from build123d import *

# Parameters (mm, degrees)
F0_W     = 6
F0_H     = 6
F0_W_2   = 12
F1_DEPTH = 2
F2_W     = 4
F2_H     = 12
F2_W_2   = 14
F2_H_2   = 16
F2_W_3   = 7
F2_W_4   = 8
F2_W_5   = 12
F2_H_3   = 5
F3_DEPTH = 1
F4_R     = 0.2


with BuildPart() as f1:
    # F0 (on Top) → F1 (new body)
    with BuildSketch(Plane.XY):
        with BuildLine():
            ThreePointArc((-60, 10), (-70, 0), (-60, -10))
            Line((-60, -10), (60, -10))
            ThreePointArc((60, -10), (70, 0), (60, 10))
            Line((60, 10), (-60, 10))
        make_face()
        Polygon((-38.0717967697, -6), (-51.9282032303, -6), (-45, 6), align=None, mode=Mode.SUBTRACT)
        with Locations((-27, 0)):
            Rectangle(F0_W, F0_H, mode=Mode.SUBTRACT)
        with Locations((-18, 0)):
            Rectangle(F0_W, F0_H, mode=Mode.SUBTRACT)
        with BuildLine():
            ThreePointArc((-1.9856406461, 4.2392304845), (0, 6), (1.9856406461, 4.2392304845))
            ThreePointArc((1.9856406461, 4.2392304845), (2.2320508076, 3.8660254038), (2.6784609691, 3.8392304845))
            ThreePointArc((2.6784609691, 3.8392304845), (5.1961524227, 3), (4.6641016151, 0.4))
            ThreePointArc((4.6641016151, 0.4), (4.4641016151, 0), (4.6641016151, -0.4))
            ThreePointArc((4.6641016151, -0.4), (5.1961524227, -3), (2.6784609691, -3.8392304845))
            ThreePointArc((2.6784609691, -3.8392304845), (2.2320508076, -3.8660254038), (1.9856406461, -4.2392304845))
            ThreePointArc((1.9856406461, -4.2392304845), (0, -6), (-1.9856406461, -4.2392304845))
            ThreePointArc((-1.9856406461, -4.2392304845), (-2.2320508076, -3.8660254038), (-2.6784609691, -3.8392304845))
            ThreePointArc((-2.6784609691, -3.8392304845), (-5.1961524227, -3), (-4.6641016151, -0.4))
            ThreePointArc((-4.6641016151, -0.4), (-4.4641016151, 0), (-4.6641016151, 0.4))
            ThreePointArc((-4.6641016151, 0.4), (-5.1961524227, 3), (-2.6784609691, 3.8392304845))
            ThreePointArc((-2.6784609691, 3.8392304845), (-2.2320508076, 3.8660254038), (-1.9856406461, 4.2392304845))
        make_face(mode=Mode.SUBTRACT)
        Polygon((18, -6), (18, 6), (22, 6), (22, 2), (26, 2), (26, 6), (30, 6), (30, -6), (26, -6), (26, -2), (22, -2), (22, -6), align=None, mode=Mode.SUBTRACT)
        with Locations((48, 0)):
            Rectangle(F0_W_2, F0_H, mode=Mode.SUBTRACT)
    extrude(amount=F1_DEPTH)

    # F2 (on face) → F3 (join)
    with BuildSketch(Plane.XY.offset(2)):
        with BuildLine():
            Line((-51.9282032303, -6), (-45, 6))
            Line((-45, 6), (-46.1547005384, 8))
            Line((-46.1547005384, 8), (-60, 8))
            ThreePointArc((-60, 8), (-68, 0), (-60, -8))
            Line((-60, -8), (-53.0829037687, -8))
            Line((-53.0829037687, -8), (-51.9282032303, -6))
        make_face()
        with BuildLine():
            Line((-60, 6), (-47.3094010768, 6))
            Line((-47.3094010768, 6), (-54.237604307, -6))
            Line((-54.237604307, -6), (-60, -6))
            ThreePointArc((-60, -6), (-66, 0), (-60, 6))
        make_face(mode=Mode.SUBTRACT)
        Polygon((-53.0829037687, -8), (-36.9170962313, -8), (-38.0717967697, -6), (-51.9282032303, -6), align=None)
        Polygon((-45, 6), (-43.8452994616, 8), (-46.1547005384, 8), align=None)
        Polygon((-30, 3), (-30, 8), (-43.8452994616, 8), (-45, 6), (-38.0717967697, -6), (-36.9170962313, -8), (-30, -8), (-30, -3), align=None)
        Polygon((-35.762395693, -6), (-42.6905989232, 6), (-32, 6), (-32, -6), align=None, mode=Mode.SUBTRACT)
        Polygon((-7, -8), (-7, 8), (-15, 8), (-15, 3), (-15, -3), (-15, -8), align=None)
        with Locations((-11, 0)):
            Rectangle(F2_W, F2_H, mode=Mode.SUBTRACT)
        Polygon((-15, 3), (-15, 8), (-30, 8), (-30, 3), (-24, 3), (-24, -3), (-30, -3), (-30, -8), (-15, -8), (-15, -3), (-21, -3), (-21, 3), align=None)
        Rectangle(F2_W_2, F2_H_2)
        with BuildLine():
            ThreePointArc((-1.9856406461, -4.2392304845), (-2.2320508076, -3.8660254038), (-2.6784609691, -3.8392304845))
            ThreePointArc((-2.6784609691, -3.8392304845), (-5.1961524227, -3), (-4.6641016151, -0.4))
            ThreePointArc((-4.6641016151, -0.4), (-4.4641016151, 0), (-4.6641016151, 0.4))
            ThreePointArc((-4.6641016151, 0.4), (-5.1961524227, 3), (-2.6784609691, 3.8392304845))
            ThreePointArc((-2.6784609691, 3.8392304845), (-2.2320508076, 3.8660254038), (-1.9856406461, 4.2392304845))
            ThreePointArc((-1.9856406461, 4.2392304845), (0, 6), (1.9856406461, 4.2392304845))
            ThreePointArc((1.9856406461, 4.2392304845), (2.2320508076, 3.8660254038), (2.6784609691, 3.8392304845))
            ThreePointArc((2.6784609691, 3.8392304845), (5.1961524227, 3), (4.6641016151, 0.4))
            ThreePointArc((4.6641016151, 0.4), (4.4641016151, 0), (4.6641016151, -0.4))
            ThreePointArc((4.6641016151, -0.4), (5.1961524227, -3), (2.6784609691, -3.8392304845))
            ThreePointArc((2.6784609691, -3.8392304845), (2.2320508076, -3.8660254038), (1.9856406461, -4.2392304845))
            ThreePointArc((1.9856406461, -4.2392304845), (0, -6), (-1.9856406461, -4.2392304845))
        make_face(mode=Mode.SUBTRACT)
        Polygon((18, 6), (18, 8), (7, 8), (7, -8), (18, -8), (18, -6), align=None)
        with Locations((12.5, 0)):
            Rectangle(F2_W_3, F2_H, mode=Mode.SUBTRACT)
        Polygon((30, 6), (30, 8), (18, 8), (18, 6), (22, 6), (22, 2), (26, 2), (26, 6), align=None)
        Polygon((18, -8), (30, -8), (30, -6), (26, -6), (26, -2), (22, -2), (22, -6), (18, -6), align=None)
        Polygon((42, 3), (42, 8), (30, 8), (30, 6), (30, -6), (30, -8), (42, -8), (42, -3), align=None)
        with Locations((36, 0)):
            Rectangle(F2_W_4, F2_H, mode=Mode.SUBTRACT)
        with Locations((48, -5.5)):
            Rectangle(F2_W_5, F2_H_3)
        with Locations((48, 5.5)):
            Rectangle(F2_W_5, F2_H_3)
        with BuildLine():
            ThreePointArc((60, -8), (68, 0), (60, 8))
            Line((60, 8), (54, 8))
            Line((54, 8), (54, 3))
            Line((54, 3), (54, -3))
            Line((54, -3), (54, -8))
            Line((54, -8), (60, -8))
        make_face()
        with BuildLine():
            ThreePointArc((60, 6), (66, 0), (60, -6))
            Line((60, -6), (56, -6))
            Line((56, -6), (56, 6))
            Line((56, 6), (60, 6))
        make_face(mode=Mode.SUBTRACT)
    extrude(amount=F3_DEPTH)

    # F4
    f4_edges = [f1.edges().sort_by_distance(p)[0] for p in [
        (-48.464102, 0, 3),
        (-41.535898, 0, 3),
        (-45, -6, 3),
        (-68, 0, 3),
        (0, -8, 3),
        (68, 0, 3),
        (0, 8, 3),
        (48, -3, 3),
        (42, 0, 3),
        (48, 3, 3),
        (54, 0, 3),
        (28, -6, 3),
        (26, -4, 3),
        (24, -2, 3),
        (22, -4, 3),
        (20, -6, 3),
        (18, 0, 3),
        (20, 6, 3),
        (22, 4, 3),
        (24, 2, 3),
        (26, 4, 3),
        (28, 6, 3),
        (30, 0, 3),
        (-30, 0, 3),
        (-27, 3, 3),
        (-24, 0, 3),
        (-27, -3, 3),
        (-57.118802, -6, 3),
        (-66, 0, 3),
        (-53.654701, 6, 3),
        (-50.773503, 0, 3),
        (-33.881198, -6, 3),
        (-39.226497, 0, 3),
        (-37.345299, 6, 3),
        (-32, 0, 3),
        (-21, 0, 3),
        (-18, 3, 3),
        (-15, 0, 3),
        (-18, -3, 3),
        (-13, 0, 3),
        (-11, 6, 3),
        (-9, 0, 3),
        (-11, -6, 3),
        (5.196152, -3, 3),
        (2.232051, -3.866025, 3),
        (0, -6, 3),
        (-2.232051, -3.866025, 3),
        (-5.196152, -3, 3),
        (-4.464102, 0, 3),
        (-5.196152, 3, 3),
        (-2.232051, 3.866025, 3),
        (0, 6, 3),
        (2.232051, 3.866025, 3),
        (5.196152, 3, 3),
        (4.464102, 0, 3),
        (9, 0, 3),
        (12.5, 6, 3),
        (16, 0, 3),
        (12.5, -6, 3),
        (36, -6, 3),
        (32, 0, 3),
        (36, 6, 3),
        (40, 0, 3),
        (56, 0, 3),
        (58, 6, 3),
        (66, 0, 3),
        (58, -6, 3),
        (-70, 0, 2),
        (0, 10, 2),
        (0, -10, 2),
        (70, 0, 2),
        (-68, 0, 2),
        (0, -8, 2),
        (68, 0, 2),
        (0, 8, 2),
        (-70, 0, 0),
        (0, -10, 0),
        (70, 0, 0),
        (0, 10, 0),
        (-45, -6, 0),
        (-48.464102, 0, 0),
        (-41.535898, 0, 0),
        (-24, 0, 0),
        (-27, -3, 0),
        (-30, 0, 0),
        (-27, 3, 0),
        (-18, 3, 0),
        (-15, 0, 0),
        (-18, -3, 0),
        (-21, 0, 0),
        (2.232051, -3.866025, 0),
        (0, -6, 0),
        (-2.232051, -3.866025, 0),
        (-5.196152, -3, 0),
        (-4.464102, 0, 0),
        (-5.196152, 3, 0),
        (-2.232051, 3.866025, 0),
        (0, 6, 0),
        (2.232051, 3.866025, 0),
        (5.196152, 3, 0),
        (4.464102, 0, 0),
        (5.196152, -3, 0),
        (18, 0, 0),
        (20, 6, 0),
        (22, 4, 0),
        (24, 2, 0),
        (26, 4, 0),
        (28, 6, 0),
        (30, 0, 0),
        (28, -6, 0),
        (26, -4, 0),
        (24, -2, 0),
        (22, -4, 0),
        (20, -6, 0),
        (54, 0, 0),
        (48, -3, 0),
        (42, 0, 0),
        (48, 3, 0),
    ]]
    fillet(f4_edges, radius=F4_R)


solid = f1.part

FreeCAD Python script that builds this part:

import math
import FreeCAD as App
import Part
import Sketcher

V = App.Vector
Q = App.Units.Quantity


def edges_at(feature, points):
    """Names of the edges that pass closest to the given points."""
    edges = feature.Shape.Edges
    near = lambda p: min(range(len(edges)), key=lambda i: edges[i].distToShape(Part.Vertex(*p))[0])
    return sorted({f"Edge{near(p) + 1}" for p in points})


def add_polygon(sketch, points):
    """Adds a closed chain of lines whose ends are joined by coincident constraints."""
    first, n = sketch.GeometryCount, len(points)
    for a, b in zip(points, points[1:] + points[:1]):
        sketch.addGeometry(Part.LineSegment(App.Vector(*a, 0), App.Vector(*b, 0)), False)
    for i in range(n):
        sketch.addConstraint(Sketcher.Constraint("Coincident", first + i, 2, first + (i + 1) % n, 1))

doc = App.newDocument("Part")
params = doc.addObject("Spreadsheet::Sheet", "Params")
for row, (alias, value) in enumerate([
    ("sketch1_radius", "10 mm"),
    ("sketch1_radius2", "2 mm"),
    ("sketch1_radius3", "0.5 mm"),
    ("sketch1_width", "120 mm"),
    ("sketch1_width2", "6 mm"),
    ("pad1_length", "2 mm"),
    ("sketch2_radius", "8 mm"),
    ("sketch2_radius2", "6 mm"),
    ("sketch2_radius3", "2 mm"),
    ("sketch2_radius4", "0.5 mm"),
    ("sketch2_width", "120 mm"),
    ("pad2_length", "1 mm"),
    ("fillet_radius", "0.2 mm"),
], start=1):
    params.set(f"A{row}", alias)
    params.set(f"B{row}", "=" + value)
    params.setAlias(f"B{row}", alias)

body = doc.addObject("PartDesign::Body", "Body")

# Sketch on XY plane
sketch1 = doc.addObject("Sketcher::SketchObject", "Sketch")
body.addObject(sketch1)
sketch1.AttachmentSupport = (doc.XY_Plane, [""])
sketch1.MapMode = "FlatFace"
sketch1.addGeometry(Part.ArcOfCircle(Part.Circle(V(-60, 0, 0), V(0, 0, 1), 10), math.radians(90), math.radians(270)), False)  # 0
sketch1.addGeometry(Part.LineSegment(V(-60, -10, 0), V(60, -10, 0)), False)  # 1
sketch1.addGeometry(Part.ArcOfCircle(Part.Circle(V(60, 0, 0), V(0, 0, 1), 10), math.radians(-90), math.radians(90)), False)  # 2
sketch1.addGeometry(Part.LineSegment(V(60, 10, 0), V(-60, 10, 0)), False)  # 3
add_polygon(sketch1, [(-45, 6), (-38.1, -6), (-51.9, -6)])  # lines 4-6
add_polygon(sketch1, [(-24, -3), (-30, -3), (-30, 3), (-24, 3)])  # lines 7-10
add_polygon(sketch1, [(-15, -3), (-21, -3), (-21, 3), (-15, 3)])  # lines 11-14
sketch1.addGeometry(Part.ArcOfCircle(Part.Circle(V(-2.5, 4.3, 0), V(0, 0, 1), 0.5), math.radians(-113), math.radians(-7)), False)  # 15
sketch1.addGeometry(Part.ArcOfCircle(Part.Circle(V(0, 4, 0), V(0, 0, 1), 2), math.radians(7), math.radians(173)), False)  # 16
sketch1.addGeometry(Part.ArcOfCircle(Part.Circle(V(2.5, 4.3, 0), V(0, 0, 1), 0.5), math.radians(-173), math.radians(-67)), False)  # 17
sketch1.addGeometry(Part.ArcOfCircle(Part.Circle(V(3.5, 2, 0), V(0, 0, 1), 2), math.radians(-53), math.radians(113)), False)  # 18
sketch1.addGeometry(Part.ArcOfCircle(Part.Circle(V(5, 0, 0), V(0, 0, 1), 0.5), math.radians(127), math.radians(233)), False)  # 19
sketch1.addGeometry(Part.ArcOfCircle(Part.Circle(V(3.5, -2, 0), V(0, 0, 1), 2), math.radians(-113), math.radians(53)), False)  # 20
sketch1.addGeometry(Part.ArcOfCircle(Part.Circle(V(2.5, -4.3, 0), V(0, 0, 1), 0.5), math.radians(67), math.radians(173)), False)  # 21
sketch1.addGeometry(Part.ArcOfCircle(Part.Circle(V(0, -4, 0), V(0, 0, 1), 2), math.radians(-173), math.radians(-7)), False)  # 22
sketch1.addGeometry(Part.ArcOfCircle(Part.Circle(V(-2.5, -4.3, 0), V(0, 0, 1), 0.5), math.radians(7), math.radians(113)), False)  # 23
sketch1.addGeometry(Part.ArcOfCircle(Part.Circle(V(-3.5, -2, 0), V(0, 0, 1), 2), math.radians(127), math.radians(293)), False)  # 24
sketch1.addGeometry(Part.ArcOfCircle(Part.Circle(V(-5, 0, 0), V(0, 0, 1), 0.5), math.radians(-53), math.radians(53)), False)  # 25
sketch1.addGeometry(Part.ArcOfCircle(Part.Circle(V(-3.5, 2, 0), V(0, 0, 1), 2), math.radians(67), math.radians(233)), False)  # 26
add_polygon(sketch1, [(22, -6), (18, -6), (18, 6), (22, 6), (22, 2), (26, 2), (26, 6), (30, 6), (30, -6), (26, -6), (26, -2), (22, -2)])  # lines 27-38
add_polygon(sketch1, [(54, -3), (42, -3), (42, 3), (54, 3)])  # lines 39-42
sketch1.addConstraint(Sketcher.Constraint("Tangent", 0, 2, 1, 1))
sketch1.addConstraint(Sketcher.Constraint("Tangent", 1, 2, 2, 1))
sketch1.addConstraint(Sketcher.Constraint("Tangent", 2, 2, 3, 1))
sketch1.addConstraint(Sketcher.Constraint("Tangent", 3, 2, 0, 1))
sketch1.addConstraint(Sketcher.Constraint("Tangent", 15, 2, 16, 2))
sketch1.addConstraint(Sketcher.Constraint("Tangent", 16, 1, 17, 1))
sketch1.addConstraint(Sketcher.Constraint("Tangent", 17, 2, 18, 2))
sketch1.addConstraint(Sketcher.Constraint("Tangent", 18, 1, 19, 1))
sketch1.addConstraint(Sketcher.Constraint("Tangent", 19, 2, 20, 2))
sketch1.addConstraint(Sketcher.Constraint("Tangent", 20, 1, 21, 1))
sketch1.addConstraint(Sketcher.Constraint("Tangent", 21, 2, 22, 2))
sketch1.addConstraint(Sketcher.Constraint("Tangent", 22, 1, 23, 1))
sketch1.addConstraint(Sketcher.Constraint("Tangent", 23, 2, 24, 2))
sketch1.addConstraint(Sketcher.Constraint("Tangent", 24, 1, 25, 1))
sketch1.addConstraint(Sketcher.Constraint("Tangent", 25, 2, 26, 2))
sketch1.addConstraint(Sketcher.Constraint("Tangent", 26, 1, 15, 1))
sketch1.addConstraint(Sketcher.Constraint("Horizontal", 1))
sketch1.addConstraint(Sketcher.Constraint("Horizontal", 3))
sketch1.addConstraint(Sketcher.Constraint("Horizontal", 5))
sketch1.addConstraint(Sketcher.Constraint("Horizontal", 7))
sketch1.addConstraint(Sketcher.Constraint("Vertical", 8))
sketch1.addConstraint(Sketcher.Constraint("Horizontal", 9))
sketch1.addConstraint(Sketcher.Constraint("Vertical", 10))
sketch1.addConstraint(Sketcher.Constraint("Horizontal", 11))
sketch1.addConstraint(Sketcher.Constraint("Vertical", 12))
sketch1.addConstraint(Sketcher.Constraint("Horizontal", 13))
sketch1.addConstraint(Sketcher.Constraint("Vertical", 14))
sketch1.addConstraint(Sketcher.Constraint("Horizontal", 27))
sketch1.addConstraint(Sketcher.Constraint("Vertical", 28))
sketch1.addConstraint(Sketcher.Constraint("Horizontal", 29))
sketch1.addConstraint(Sketcher.Constraint("Vertical", 30))
sketch1.addConstraint(Sketcher.Constraint("Horizontal", 31))
sketch1.addConstraint(Sketcher.Constraint("Vertical", 32))
sketch1.addConstraint(Sketcher.Constraint("Horizontal", 33))
sketch1.addConstraint(Sketcher.Constraint("Vertical", 34))
sketch1.addConstraint(Sketcher.Constraint("Horizontal", 35))
sketch1.addConstraint(Sketcher.Constraint("Vertical", 36))
sketch1.addConstraint(Sketcher.Constraint("Horizontal", 37))
sketch1.addConstraint(Sketcher.Constraint("Vertical", 38))
sketch1.addConstraint(Sketcher.Constraint("Horizontal", 39))
sketch1.addConstraint(Sketcher.Constraint("Vertical", 40))
sketch1.addConstraint(Sketcher.Constraint("Horizontal", 41))
sketch1.addConstraint(Sketcher.Constraint("Vertical", 42))
sketch1.addConstraint(Sketcher.Constraint("Equal", 15, 17))
sketch1.addConstraint(Sketcher.Constraint("Equal", 16, 18))
sketch1.addConstraint(Sketcher.Constraint("Equal", 17, 19))
sketch1.addConstraint(Sketcher.Constraint("Equal", 18, 20))
sketch1.addConstraint(Sketcher.Constraint("Equal", 19, 21))
sketch1.addConstraint(Sketcher.Constraint("Equal", 20, 22))
sketch1.addConstraint(Sketcher.Constraint("Equal", 21, 23))
sketch1.addConstraint(Sketcher.Constraint("Equal", 22, 24))
sketch1.addConstraint(Sketcher.Constraint("Equal", 23, 25))
sketch1.addConstraint(Sketcher.Constraint("Equal", 24, 26))
sketch1.addConstraint(Sketcher.Constraint("Symmetric", 0, 3, 2, 3, -1, 1))
sketch1.addConstraint(Sketcher.Constraint("Symmetric", 15, 3, 21, 3, -1, 1))
sketch1.addConstraint(Sketcher.Constraint("Symmetric", 17, 3, 23, 3, -1, 1))
sketch1.addConstraint(Sketcher.Constraint("Symmetric", 19, 3, 25, 3, -1, 1))
sketch1.addConstraint(Sketcher.Constraint("Symmetric", 15, 3, 17, 3, -2))
sketch1.addConstraint(Sketcher.Constraint("Symmetric", 32, 2, 35, 2, -1))
sketch1.addConstraint(Sketcher.Constraint("Symmetric", 30, 2, 37, 2, -1))
sketch1.addConstraint(Sketcher.Constraint("PointOnObject", 19, 3, -1))
sketch1.addConstraint(Sketcher.Constraint("Horizontal", 10, 2, 11, 2))
sketch1.addConstraint(Sketcher.Constraint("Horizontal", 9, 2, 12, 2))
sketch1.addConstraint(Sketcher.Constraint("Horizontal", 5, 2, 27, 2))
sketch1.addConstraint(Sketcher.Constraint("Horizontal", 6, 2, 28, 2))
sketch1.addConstraint(Sketcher.Constraint("Horizontal", 26, 3, 30, 2))
sketch1.addConstraint(Sketcher.Constraint("Horizontal", 29, 2, 32, 2))
sketch1.addConstraint(Sketcher.Constraint("Horizontal", 27, 2, 34, 2))
sketch1.addConstraint(Sketcher.Constraint("Horizontal", 14, 2, 39, 2))
sketch1.addConstraint(Sketcher.Constraint("Horizontal", 13, 2, 40, 2))
sketch1.addConstraint(Sketcher.Constraint("Equal", 9, 11))
sketch1.addConstraint(Sketcher.Constraint("Equal", 29, 31))
sketch1.addConstraint(Sketcher.Constraint("Equal", 31, 33))
sketch1.addConstraint(Sketcher.Constraint("Equal", 13, 8))
sketch1.addConstraint(Sketcher.Constraint("Equal", 41, 28))
sketch1.addConstraint(Sketcher.Constraint("Equal", 37, 30))
sketch1.addConstraint(Sketcher.Constraint("Equal", 4, 6))
sketch1.addConstraint(Sketcher.Constraint("Radius", 0, 10.0))
sketch1.addConstraint(Sketcher.Constraint("Radius", 16, 2.0))
sketch1.addConstraint(Sketcher.Constraint("Radius", 15, 0.5))
sketch1.addConstraint(Sketcher.Constraint("DistanceX", 1, 1, 1, 2, 120.0))
sketch1.addConstraint(Sketcher.Constraint("DistanceX", 7, 2, 7, 1, 6.0))
sketch1.addConstraint(Sketcher.Constraint("DistanceX", 27, 2, 27, 1, 4.0))
sketch1.addConstraint(Sketcher.Constraint("DistanceX", 39, 2, 39, 1, 12.0))
sketch1.addConstraint(Sketcher.Constraint("Angle", 4, Q("-60 deg")))
sketch1.addConstraint(Sketcher.Constraint("DistanceY", -1, 1, 16, 3, 4.0))
sketch1.addConstraint(Sketcher.Constraint("DistanceX", 6, 2, -1, 1, 45.0))
sketch1.addConstraint(Sketcher.Constraint("DistanceX", 7, 2, -1, 1, 30.0))
sketch1.addConstraint(Sketcher.Constraint("DistanceY", 7, 2, -1, 1, 3.0))
sketch1.addConstraint(Sketcher.Constraint("DistanceX", 11, 2, -1, 1, 21.0))
sketch1.addConstraint(Sketcher.Constraint("DistanceX", -1, 1, 27, 2, 18.0))
sketch1.addConstraint(Sketcher.Constraint("DistanceX", -1, 1, 39, 2, 42.0))
sketch1.addConstraint(Sketcher.Constraint("DistanceX", -1, 1, 18, 3, 3.464102))
sketch1.setExpression("Constraints[104]", "Params.sketch1_radius")
sketch1.setExpression("Constraints[105]", "Params.sketch1_radius2")
sketch1.setExpression("Constraints[106]", "Params.sketch1_radius3")
sketch1.setExpression("Constraints[107]", "Params.sketch1_width")
sketch1.setExpression("Constraints[108]", "Params.sketch1_width2")
pad1 = doc.addObject("PartDesign::Pad", "Pad")
body.addObject(pad1)
pad1.Profile = sketch1
pad1.setExpression("Length", "Params.pad1_length")

# Sketch on XY plane
sketch2 = doc.addObject("Sketcher::SketchObject", "Sketch001")
body.addObject(sketch2)
sketch2.AttachmentSupport = (doc.XY_Plane, [""])
sketch2.MapMode = "FlatFace"
sketch2.AttachmentOffset = App.Placement(V(0, 0, 2), App.Rotation())
sketch2.addGeometry(Part.ArcOfCircle(Part.Circle(V(-60, 0, 0), V(0, 0, 1), 8), math.radians(90), math.radians(270)), False)  # 0
sketch2.addGeometry(Part.LineSegment(V(-60, -8, 0), V(60, -8, 0)), False)  # 1
sketch2.addGeometry(Part.ArcOfCircle(Part.Circle(V(60, 0, 0), V(0, 0, 1), 8), math.radians(-90), math.radians(90)), False)  # 2
sketch2.addGeometry(Part.LineSegment(V(60, 8, 0), V(-60, 8, 0)), False)  # 3
sketch2.addGeometry(Part.ArcOfCircle(Part.Circle(V(-60, 0, 0), V(0, 0, 1), 6), math.radians(90), math.radians(270)), False)  # 4
sketch2.addGeometry(Part.LineSegment(V(-60, 6, 0), V(-47.3, 6, 0)), False)  # 5
sketch2.addGeometry(Part.LineSegment(V(-47.3, 6, 0), V(-54.2, -6, 0)), False)  # 6
sketch2.addGeometry(Part.LineSegment(V(-54.2, -6, 0), V(-60, -6, 0)), False)  # 7
add_polygon(sketch2, [(-51.9, -6), (-45, 6), (-38.1, -6)])  # lines 8-10
add_polygon(sketch2, [(-32, -6), (-35.8, -6), (-42.7, 6), (-32, 6)])  # lines 11-14
add_polygon(sketch2, [(-30, -3), (-30, 3), (-24, 3), (-24, -3)])  # lines 15-18
add_polygon(sketch2, [(-21, -3), (-21, 3), (-15, 3), (-15, -3)])  # lines 19-22
add_polygon(sketch2, [(-13, -6), (-13, 6), (-9, 6), (-9, -6)])  # lines 23-26
sketch2.addGeometry(Part.ArcOfCircle(Part.Circle(V(0, -4, 0), V(0, 0, 1), 2), math.radians(-173), math.radians(-7)), False)  # 27
sketch2.addGeometry(Part.ArcOfCircle(Part.Circle(V(-2.5, -4.3, 0), V(0, 0, 1), 0.5), math.radians(7), math.radians(113)), False)  # 28
sketch2.addGeometry(Part.ArcOfCircle(Part.Circle(V(-3.5, -2, 0), V(0, 0, 1), 2), math.radians(127), math.radians(293)), False)  # 29
sketch2.addGeometry(Part.ArcOfCircle(Part.Circle(V(-5, 0, 0), V(0, 0, 1), 0.5), math.radians(-53), math.radians(53)), False)  # 30
sketch2.addGeometry(Part.ArcOfCircle(Part.Circle(V(-3.5, 2, 0), V(0, 0, 1), 2), math.radians(67), math.radians(233)), False)  # 31
sketch2.addGeometry(Part.ArcOfCircle(Part.Circle(V(-2.5, 4.3, 0), V(0, 0, 1), 0.5), math.radians(-113), math.radians(-7)), False)  # 32
sketch2.addGeometry(Part.ArcOfCircle(Part.Circle(V(0, 4, 0), V(0, 0, 1), 2), math.radians(7), math.radians(173)), False)  # 33
sketch2.addGeometry(Part.ArcOfCircle(Part.Circle(V(2.5, 4.3, 0), V(0, 0, 1), 0.5), math.radians(-173), math.radians(-67)), False)  # 34
sketch2.addGeometry(Part.ArcOfCircle(Part.Circle(V(3.5, 2, 0), V(0, 0, 1), 2), math.radians(-53), math.radians(113)), False)  # 35
sketch2.addGeometry(Part.ArcOfCircle(Part.Circle(V(5, 0, 0), V(0, 0, 1), 0.5), math.radians(127), math.radians(233)), False)  # 36
sketch2.addGeometry(Part.ArcOfCircle(Part.Circle(V(3.5, -2, 0), V(0, 0, 1), 2), math.radians(-113), math.radians(53)), False)  # 37
sketch2.addGeometry(Part.ArcOfCircle(Part.Circle(V(2.5, -4.3, 0), V(0, 0, 1), 0.5), math.radians(67), math.radians(173)), False)  # 38
add_polygon(sketch2, [(16, -6), (9, -6), (9, 6), (16, 6)])  # lines 39-42
add_polygon(sketch2, [(30, -6), (26, -6), (26, -2), (22, -2), (22, -6), (18, -6), (18, 6), (22, 6), (22, 2), (26, 2), (26, 6), (30, 6)])  # lines 43-54
add_polygon(sketch2, [(40, -6), (32, -6), (32, 6), (40, 6)])  # lines 55-58
add_polygon(sketch2, [(54, -3), (42, -3), (42, 3), (54, 3)])  # lines 59-62
sketch2.addGeometry(Part.LineSegment(V(56, 6, 0), V(60, 6, 0)), False)  # 63
sketch2.addGeometry(Part.ArcOfCircle(Part.Circle(V(60, 0, 0), V(0, 0, 1), 6), math.radians(-90), math.radians(90)), False)  # 64
sketch2.addGeometry(Part.LineSegment(V(60, -6, 0), V(56, -6, 0)), False)  # 65
sketch2.addGeometry(Part.LineSegment(V(56, -6, 0), V(56, 6, 0)), False)  # 66
sketch2.addConstraint(Sketcher.Constraint("Tangent", 0, 2, 1, 1))
sketch2.addConstraint(Sketcher.Constraint("Tangent", 1, 2, 2, 1))
sketch2.addConstraint(Sketcher.Constraint("Tangent", 2, 2, 3, 1))
sketch2.addConstraint(Sketcher.Constraint("Tangent", 3, 2, 0, 1))
sketch2.addConstraint(Sketcher.Constraint("Tangent", 4, 1, 5, 1))
sketch2.addConstraint(Sketcher.Constraint("Coincident", 5, 2, 6, 1))
sketch2.addConstraint(Sketcher.Constraint("Coincident", 6, 2, 7, 1))
sketch2.addConstraint(Sketcher.Constraint("Tangent", 7, 2, 4, 2))
sketch2.addConstraint(Sketcher.Constraint("Tangent", 27, 1, 28, 1))
sketch2.addConstraint(Sketcher.Constraint("Tangent", 28, 2, 29, 2))
sketch2.addConstraint(Sketcher.Constraint("Tangent", 29, 1, 30, 1))
sketch2.addConstraint(Sketcher.Constraint("Tangent", 30, 2, 31, 2))
sketch2.addConstraint(Sketcher.Constraint("Tangent", 31, 1, 32, 1))
sketch2.addConstraint(Sketcher.Constraint("Tangent", 32, 2, 33, 2))
sketch2.addConstraint(Sketcher.Constraint("Tangent", 33, 1, 34, 1))
sketch2.addConstraint(Sketcher.Constraint("Tangent", 34, 2, 35, 2))
sketch2.addConstraint(Sketcher.Constraint("Tangent", 35, 1, 36, 1))
sketch2.addConstraint(Sketcher.Constraint("Tangent", 36, 2, 37, 2))
sketch2.addConstraint(Sketcher.Constraint("Tangent", 37, 1, 38, 1))
sketch2.addConstraint(Sketcher.Constraint("Tangent", 38, 2, 27, 2))
sketch2.addConstraint(Sketcher.Constraint("Tangent", 63, 2, 64, 2))
sketch2.addConstraint(Sketcher.Constraint("Tangent", 64, 1, 65, 1))
sketch2.addConstraint(Sketcher.Constraint("Coincident", 65, 2, 66, 1))
sketch2.addConstraint(Sketcher.Constraint("Coincident", 66, 2, 63, 1))
sketch2.addConstraint(Sketcher.Constraint("Horizontal", 1))
sketch2.addConstraint(Sketcher.Constraint("Horizontal", 3))
sketch2.addConstraint(Sketcher.Constraint("Horizontal", 5))
sketch2.addConstraint(Sketcher.Constraint("Horizontal", 7))
sketch2.addConstraint(Sketcher.Constraint("Horizontal", 10))
sketch2.addConstraint(Sketcher.Constraint("Horizontal", 11))
sketch2.addConstraint(Sketcher.Constraint("Horizontal", 13))
sketch2.addConstraint(Sketcher.Constraint("Vertical", 14))
sketch2.addConstraint(Sketcher.Constraint("Vertical", 15))
sketch2.addConstraint(Sketcher.Constraint("Horizontal", 16))
sketch2.addConstraint(Sketcher.Constraint("Vertical", 17))
sketch2.addConstraint(Sketcher.Constraint("Horizontal", 18))
sketch2.addConstraint(Sketcher.Constraint("Vertical", 19))
sketch2.addConstraint(Sketcher.Constraint("Horizontal", 20))
sketch2.addConstraint(Sketcher.Constraint("Vertical", 21))
sketch2.addConstraint(Sketcher.Constraint("Horizontal", 22))
sketch2.addConstraint(Sketcher.Constraint("Vertical", 23))
sketch2.addConstraint(Sketcher.Constraint("Horizontal", 24))
sketch2.addConstraint(Sketcher.Constraint("Vertical", 25))
sketch2.addConstraint(Sketcher.Constraint("Horizontal", 26))
sketch2.addConstraint(Sketcher.Constraint("Horizontal", 39))
sketch2.addConstraint(Sketcher.Constraint("Vertical", 40))
sketch2.addConstraint(Sketcher.Constraint("Horizontal", 41))
sketch2.addConstraint(Sketcher.Constraint("Vertical", 42))
sketch2.addConstraint(Sketcher.Constraint("Horizontal", 43))
sketch2.addConstraint(Sketcher.Constraint("Vertical", 44))
sketch2.addConstraint(Sketcher.Constraint("Horizontal", 45))
sketch2.addConstraint(Sketcher.Constraint("Vertical", 46))
sketch2.addConstraint(Sketcher.Constraint("Horizontal", 47))
sketch2.addConstraint(Sketcher.Constraint("Vertical", 48))
sketch2.addConstraint(Sketcher.Constraint("Horizontal", 49))
sketch2.addConstraint(Sketcher.Constraint("Vertical", 50))
sketch2.addConstraint(Sketcher.Constraint("Horizontal", 51))
sketch2.addConstraint(Sketcher.Constraint("Vertical", 52))
sketch2.addConstraint(Sketcher.Constraint("Horizontal", 53))
sketch2.addConstraint(Sketcher.Constraint("Vertical", 54))
sketch2.addConstraint(Sketcher.Constraint("Horizontal", 55))
sketch2.addConstraint(Sketcher.Constraint("Vertical", 56))
sketch2.addConstraint(Sketcher.Constraint("Horizontal", 57))
sketch2.addConstraint(Sketcher.Constraint("Vertical", 58))
sketch2.addConstraint(Sketcher.Constraint("Horizontal", 59))
sketch2.addConstraint(Sketcher.Constraint("Vertical", 60))
sketch2.addConstraint(Sketcher.Constraint("Horizontal", 61))
sketch2.addConstraint(Sketcher.Constraint("Vertical", 62))
sketch2.addConstraint(Sketcher.Constraint("Horizontal", 63))
sketch2.addConstraint(Sketcher.Constraint("Horizontal", 65))
sketch2.addConstraint(Sketcher.Constraint("Vertical", 66))
sketch2.addConstraint(Sketcher.Constraint("Coincident", 4, 3, 0, 3))
sketch2.addConstraint(Sketcher.Constraint("Coincident", 64, 3, 2, 3))
sketch2.addConstraint(Sketcher.Constraint("Equal", 27, 29))
sketch2.addConstraint(Sketcher.Constraint("Equal", 28, 30))
sketch2.addConstraint(Sketcher.Constraint("Equal", 29, 31))
sketch2.addConstraint(Sketcher.Constraint("Equal", 30, 32))
sketch2.addConstraint(Sketcher.Constraint("Equal", 31, 33))
sketch2.addConstraint(Sketcher.Constraint("Equal", 32, 34))
sketch2.addConstraint(Sketcher.Constraint("Equal", 33, 35))
sketch2.addConstraint(Sketcher.Constraint("Equal", 34, 36))
sketch2.addConstraint(Sketcher.Constraint("Equal", 35, 37))
sketch2.addConstraint(Sketcher.Constraint("Equal", 36, 38))
sketch2.addConstraint(Sketcher.Constraint("Equal", 4, 64))
sketch2.addConstraint(Sketcher.Constraint("Symmetric", 0, 3, 2, 3, -1, 1))
sketch2.addConstraint(Sketcher.Constraint("Symmetric", 27, 3, 33, 3, -1, 1))
sketch2.addConstraint(Sketcher.Constraint("Symmetric", 29, 3, 35, 3, -1, 1))
sketch2.addConstraint(Sketcher.Constraint("Symmetric", 31, 3, 37, 3, -1, 1))
sketch2.addConstraint(Sketcher.Constraint("Symmetric", 24, 2, 39, 2, -1, 1))
sketch2.addConstraint(Sketcher.Constraint("Symmetric", 13, 2, 55, 2, -1, 1))
sketch2.addConstraint(Sketcher.Constraint("Symmetric", 32, 3, 34, 3, -2))
sketch2.addConstraint(Sketcher.Constraint("Symmetric", 46, 2, 49, 2, -1))
sketch2.addConstraint(Sketcher.Constraint("Symmetric", 44, 2, 51, 2, -1))
sketch2.addConstraint(Sketcher.Constraint("PointOnObject", 30, 3, -1))
sketch2.addConstraint(Sketcher.Constraint("Parallel", 6, 8))
sketch2.addConstraint(Sketcher.Constraint("Parallel", 9, 12))
sketch2.addConstraint(Sketcher.Constraint("Horizontal", 5, 2, 8, 2))
sketch2.addConstraint(Sketcher.Constraint("Horizontal", 7, 2, 9, 2))
sketch2.addConstraint(Sketcher.Constraint("Horizontal", 10, 2, 11, 2))
sketch2.addConstraint(Sketcher.Constraint("Horizontal", 8, 2, 12, 2))
sketch2.addConstraint(Sketcher.Constraint("Horizontal", 16, 2, 19, 2))
sketch2.addConstraint(Sketcher.Constraint("Horizontal", 18, 2, 21, 2))
sketch2.addConstraint(Sketcher.Constraint("Horizontal", 13, 2, 23, 2))
sketch2.addConstraint(Sketcher.Constraint("Horizontal", 14, 2, 25, 2))
sketch2.addConstraint(Sketcher.Constraint("Horizontal", 24, 2, 40, 2))
sketch2.addConstraint(Sketcher.Constraint("Horizontal", 42, 2, 43, 2))
sketch2.addConstraint(Sketcher.Constraint("Horizontal", 37, 3, 44, 2))
sketch2.addConstraint(Sketcher.Constraint("Horizontal", 43, 2, 46, 2))
sketch2.addConstraint(Sketcher.Constraint("Horizontal", 49, 2, 52, 2))
sketch2.addConstraint(Sketcher.Constraint("Horizontal", 53, 2, 56, 2))
sketch2.addConstraint(Sketcher.Constraint("Horizontal", 22, 2, 59, 2))
sketch2.addConstraint(Sketcher.Constraint("Horizontal", 20, 2, 60, 2))
sketch2.addConstraint(Sketcher.Constraint("Equal", 18, 20))
sketch2.addConstraint(Sketcher.Constraint("Equal", 26, 43))
sketch2.addConstraint(Sketcher.Constraint("Equal", 43, 45))
sketch2.addConstraint(Sketcher.Constraint("Equal", 45, 47))
sketch2.addConstraint(Sketcher.Constraint("Equal", 53, 63))
sketch2.addConstraint(Sketcher.Constraint("Equal", 61, 14))
sketch2.addConstraint(Sketcher.Constraint("Equal", 22, 15))
sketch2.addConstraint(Sketcher.Constraint("Equal", 65, 44))
sketch2.addConstraint(Sketcher.Constraint("Equal", 8, 9))
sketch2.addConstraint(Sketcher.Constraint("Radius", 0, 8.0))
sketch2.addConstraint(Sketcher.Constraint("Radius", 4, 6.0))
sketch2.addConstraint(Sketcher.Constraint("Radius", 27, 2.0))
sketch2.addConstraint(Sketcher.Constraint("Radius", 28, 0.5))
sketch2.addConstraint(Sketcher.Constraint("DistanceX", 1, 1, 1, 2, 120.0))
sketch2.addConstraint(Sketcher.Constraint("DistanceX", 16, 1, 16, 2, 6.0))
sketch2.addConstraint(Sketcher.Constraint("DistanceX", 24, 1, 24, 2, 4.0))
sketch2.addConstraint(Sketcher.Constraint("DistanceX", 39, 2, 39, 1, 7.0))
sketch2.addConstraint(Sketcher.Constraint("DistanceX", 55, 2, 55, 1, 8.0))
sketch2.addConstraint(Sketcher.Constraint("Angle", 6, Q("-120 deg")))
sketch2.addConstraint(Sketcher.Constraint("DistanceY", 27, 3, -1, 1, 4.0))
sketch2.addConstraint(Sketcher.Constraint("DistanceX", 8, 2, -1, 1, 45.0))
sketch2.addConstraint(Sketcher.Constraint("DistanceX", 13, 2, -1, 1, 32.0))
sketch2.addConstraint(Sketcher.Constraint("DistanceX", 15, 2, -1, 1, 30.0))
sketch2.addConstraint(Sketcher.Constraint("DistanceY", -1, 1, 15, 2, 3.0))
sketch2.addConstraint(Sketcher.Constraint("DistanceX", 19, 2, -1, 1, 21.0))
sketch2.addConstraint(Sketcher.Constraint("DistanceX", 23, 2, -1, 1, 13.0))
sketch2.addConstraint(Sketcher.Constraint("DistanceX", -1, 1, 43, 2, 26.0))
sketch2.addConstraint(Sketcher.Constraint("DistanceX", -1, 1, 59, 2, 42.0))
sketch2.addConstraint(Sketcher.Constraint("DistanceX", 5, 1, 5, 2, 12.690599))
sketch2.addConstraint(Sketcher.Constraint("DistanceX", 13, 1, 13, 2, 10.690599))
sketch2.addConstraint(Sketcher.Constraint("DistanceX", 29, 3, -1, 1, 3.464102))
sketch2.setExpression("Constraints[164]", "Params.sketch2_radius")
sketch2.setExpression("Constraints[165]", "Params.sketch2_radius2")
sketch2.setExpression("Constraints[166]", "Params.sketch2_radius3")
sketch2.setExpression("Constraints[167]", "Params.sketch2_radius4")
sketch2.setExpression("Constraints[168]", "Params.sketch2_width")
pad2 = doc.addObject("PartDesign::Pad", "Pad001")
body.addObject(pad2)
pad2.Profile = sketch2
pad2.setExpression("Length", "Params.pad2_length")
doc.recompute()

fillet = doc.addObject("PartDesign::Fillet", "Fillet")
body.addObject(fillet)
fillet.Base = (pad2, edges_at(pad2, [
    (-48.464, 0, 3),
    (-41.536, 0, 3),
    (-45, -6, 3),
    (-68, 0, 3),
    (0, -8, 3),
    (68, 0, 3),
    (0, 8, 3),
    (48, -3, 3),
    (42, 0, 3),
    (48, 3, 3),
    (54, 0, 3),
    (28, -6, 3),
    (26, -4, 3),
    (24, -2, 3),
    (22, -4, 3),
    (20, -6, 3),
    (18, 0, 3),
    (20, 6, 3),
    (22, 4, 3),
    (24, 2, 3),
    (26, 4, 3),
    (28, 6, 3),
    (30, 0, 3),
    (-30, 0, 3),
    (-27, 3, 3),
    (-24, 0, 3),
    (-27, -3, 3),
    (-57.119, -6, 3),
    (-66, 0, 3),
    (-53.655, 6, 3),
    (-50.774, 0, 3),
    (-33.881, -6, 3),
    (-39.226, 0, 3),
    (-37.345, 6, 3),
    (-32, 0, 3),
    (-21, 0, 3),
    (-18, 3, 3),
    (-15, 0, 3),
    (-18, -3, 3),
    (-13, 0, 3),
    (-11, 6, 3),
    (-9, 0, 3),
    (-11, -6, 3),
    (5.196, -3, 3),
    (2.232, -3.866, 3),
    (0, -6, 3),
    (-2.232, -3.866, 3),
    (-5.196, -3, 3),
    (-4.464, 0, 3),
    (-5.196, 3, 3),
    (-2.232, 3.866, 3),
    (0, 6, 3),
    (2.232, 3.866, 3),
    (5.196, 3, 3),
    (4.464, 0, 3),
    (9, 0, 3),
    (12.5, 6, 3),
    (16, 0, 3),
    (12.5, -6, 3),
    (36, -6, 3),
    (32, 0, 3),
    (36, 6, 3),
    (40, 0, 3),
    (56, 0, 3),
    (58, 6, 3),
    (66, 0, 3),
    (58, -6, 3),
    (-70, 0, 2),
    (0, 10, 2),
    (0, -10, 2),
    (70, 0, 2),
    (-68, 0, 2),
    (0, -8, 2),
    (68, 0, 2),
    (0, 8, 2),
    (-70, 0, 0),
    (0, -10, 0),
    (70, 0, 0),
    (0, 10, 0),
    (-45, -6, 0),
    (-48.464, 0, 0),
    (-41.536, 0, 0),
    (-24, 0, 0),
    (-27, -3, 0),
    (-30, 0, 0),
    (-27, 3, 0),
    (-18, 3, 0),
    (-15, 0, 0),
    (-18, -3, 0),
    (-21, 0, 0),
    (2.232, -3.866, 0),
    (0, -6, 0),
    (-2.232, -3.866, 0),
    (-5.196, -3, 0),
    (-4.464, 0, 0),
    (-5.196, 3, 0),
    (-2.232, 3.866, 0),
    (0, 6, 0),
    (2.232, 3.866, 0),
    (5.196, 3, 0),
    (4.464, 0, 0),
    (5.196, -3, 0),
    (18, 0, 0),
    (20, 6, 0),
    (22, 4, 0),
    (24, 2, 0),
    (26, 4, 0),
    (28, 6, 0),
    (30, 0, 0),
    (28, -6, 0),
    (26, -4, 0),
    (24, -2, 0),
    (22, -4, 0),
    (20, -6, 0),
    (54, 0, 0),
    (48, -3, 0),
    (42, 0, 0),
    (48, 3, 0),
]))
fillet.setExpression("Radius", "Params.fillet_radius")

doc.recompute()
